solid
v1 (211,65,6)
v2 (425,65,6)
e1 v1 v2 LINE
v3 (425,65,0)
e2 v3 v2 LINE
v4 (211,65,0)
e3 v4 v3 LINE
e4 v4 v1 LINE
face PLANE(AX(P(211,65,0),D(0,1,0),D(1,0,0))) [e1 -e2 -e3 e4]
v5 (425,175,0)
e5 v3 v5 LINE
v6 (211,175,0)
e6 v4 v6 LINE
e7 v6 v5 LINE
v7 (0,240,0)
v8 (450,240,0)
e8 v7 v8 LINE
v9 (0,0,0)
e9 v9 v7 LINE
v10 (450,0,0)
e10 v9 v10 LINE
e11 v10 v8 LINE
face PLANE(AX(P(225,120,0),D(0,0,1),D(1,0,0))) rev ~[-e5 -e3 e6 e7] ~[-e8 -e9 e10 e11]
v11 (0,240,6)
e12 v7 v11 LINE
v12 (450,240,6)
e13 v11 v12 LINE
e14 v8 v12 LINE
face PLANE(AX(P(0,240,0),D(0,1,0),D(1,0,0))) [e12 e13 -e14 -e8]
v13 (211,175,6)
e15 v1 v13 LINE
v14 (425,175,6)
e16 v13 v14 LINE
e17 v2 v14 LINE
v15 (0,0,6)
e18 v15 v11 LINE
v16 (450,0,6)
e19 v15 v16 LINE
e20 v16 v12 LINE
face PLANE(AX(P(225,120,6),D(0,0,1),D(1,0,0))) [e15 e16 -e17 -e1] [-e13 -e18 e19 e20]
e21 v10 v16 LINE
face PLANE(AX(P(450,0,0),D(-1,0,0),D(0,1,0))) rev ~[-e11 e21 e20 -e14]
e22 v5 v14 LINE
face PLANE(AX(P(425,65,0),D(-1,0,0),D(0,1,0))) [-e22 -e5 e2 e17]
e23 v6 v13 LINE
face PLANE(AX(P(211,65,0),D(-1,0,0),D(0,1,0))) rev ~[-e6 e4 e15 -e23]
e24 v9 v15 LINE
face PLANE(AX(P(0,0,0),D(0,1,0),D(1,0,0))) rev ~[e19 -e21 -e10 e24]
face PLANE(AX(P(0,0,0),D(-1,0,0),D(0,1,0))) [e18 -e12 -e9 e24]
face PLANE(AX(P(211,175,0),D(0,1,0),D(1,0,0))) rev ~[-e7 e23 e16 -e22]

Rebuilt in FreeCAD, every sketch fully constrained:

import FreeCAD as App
import Part
import Sketcher
from FreeCAD import Vector

doc = App.newDocument("Part")
params = doc.addObject("Spreadsheet::Sheet", "Params")
for row, (alias, value) in enumerate([
    ("sketch1_width", "450 mm"),
    ("sketch1_width2", "214 mm"),
    ("sketch1_height", "240 mm"),
    ("sketch1_height2", "110 mm"),
    ("pad1_length", "6 mm"),
], start=1):
    params.set(f"A{row}", alias)
    params.set(f"B{row}", "=" + value)
    params.setAlias(f"B{row}", alias)

body = doc.addObject("PartDesign::Body", "Body")

# Sketch on XY plane
sketch1 = body.newObject("Sketcher::SketchObject", "Sketch")
sketch1.AttachmentSupport = (doc.getObject("XY_Plane"), [""])
sketch1.MapMode = "FlatFace"
sketch1.addGeometry([
    Part.LineSegment(Vector(0, 240, 0), Vector(0, 0, 0)),  # 0
    Part.LineSegment(Vector(0, 0, 0), Vector(450, 0, 0)),  # 1
    Part.LineSegment(Vector(450, 0, 0), Vector(450, 240, 0)),  # 2
    Part.LineSegment(Vector(450, 240, 0), Vector(0, 240, 0)),  # 3
    Part.LineSegment(Vector(425, 65, 0), Vector(211, 65, 0)),  # 4
    Part.LineSegment(Vector(211, 65, 0), Vector(211, 175, 0)),  # 5
    Part.LineSegment(Vector(211, 175, 0), Vector(425, 175, 0)),  # 6
    Part.LineSegment(Vector(425, 175, 0), Vector(425, 65, 0)),  # 7
], False)
sketch1.addConstraint([
    Sketcher.Constraint("Coincident", 0, 2, 1, 1),
    Sketcher.Constraint("Coincident", 1, 2, 2, 1),
    Sketcher.Constraint("Coincident", 2, 2, 3, 1),
    Sketcher.Constraint("Coincident", 3, 2, 0, 1),
    Sketcher.Constraint("Coincident", 4, 2, 5, 1),
    Sketcher.Constraint("Coincident", 5, 2, 6, 1),
    Sketcher.Constraint("Coincident", 6, 2, 7, 1),
    Sketcher.Constraint("Coincident", 7, 2, 4, 1),
    Sketcher.Constraint("Vertical", 0),
    Sketcher.Constraint("Horizontal", 1),
    Sketcher.Constraint("Vertical", 2),
    Sketcher.Constraint("Horizontal", 3),
    Sketcher.Constraint("Horizontal", 4),
    Sketcher.Constraint("Vertical", 5),
    Sketcher.Constraint("Horizontal", 6),
    Sketcher.Constraint("Vertical", 7),
    Sketcher.Constraint("Coincident", 0, 2, -1, 1),
    Sketcher.Constraint("DistanceX", 1, 1, 1, 2, 450.0),
    Sketcher.Constraint("DistanceX", 4, 2, 4, 1, 214.0),
    Sketcher.Constraint("DistanceY", 0, 2, 0, 1, 240.0),
    Sketcher.Constraint("DistanceY", 5, 1, 5, 2, 110.0),
    Sketcher.Constraint("DistanceX", -1, 1, 4, 2, 211.0),
    Sketcher.Constraint("DistanceY", -1, 1, 4, 2, 65.0),
])
sketch1.setExpression("Constraints[17]", "Params.sketch1_width")
sketch1.setExpression("Constraints[18]", "Params.sketch1_width2")
sketch1.setExpression("Constraints[19]", "Params.sketch1_height")
sketch1.setExpression("Constraints[20]", "Params.sketch1_height2")
pad1 = body.newObject("PartDesign::Pad", "Pad")
pad1.Profile = sketch1
pad1.setExpression("Length", "Params.pad1_length")

doc.recompute()
